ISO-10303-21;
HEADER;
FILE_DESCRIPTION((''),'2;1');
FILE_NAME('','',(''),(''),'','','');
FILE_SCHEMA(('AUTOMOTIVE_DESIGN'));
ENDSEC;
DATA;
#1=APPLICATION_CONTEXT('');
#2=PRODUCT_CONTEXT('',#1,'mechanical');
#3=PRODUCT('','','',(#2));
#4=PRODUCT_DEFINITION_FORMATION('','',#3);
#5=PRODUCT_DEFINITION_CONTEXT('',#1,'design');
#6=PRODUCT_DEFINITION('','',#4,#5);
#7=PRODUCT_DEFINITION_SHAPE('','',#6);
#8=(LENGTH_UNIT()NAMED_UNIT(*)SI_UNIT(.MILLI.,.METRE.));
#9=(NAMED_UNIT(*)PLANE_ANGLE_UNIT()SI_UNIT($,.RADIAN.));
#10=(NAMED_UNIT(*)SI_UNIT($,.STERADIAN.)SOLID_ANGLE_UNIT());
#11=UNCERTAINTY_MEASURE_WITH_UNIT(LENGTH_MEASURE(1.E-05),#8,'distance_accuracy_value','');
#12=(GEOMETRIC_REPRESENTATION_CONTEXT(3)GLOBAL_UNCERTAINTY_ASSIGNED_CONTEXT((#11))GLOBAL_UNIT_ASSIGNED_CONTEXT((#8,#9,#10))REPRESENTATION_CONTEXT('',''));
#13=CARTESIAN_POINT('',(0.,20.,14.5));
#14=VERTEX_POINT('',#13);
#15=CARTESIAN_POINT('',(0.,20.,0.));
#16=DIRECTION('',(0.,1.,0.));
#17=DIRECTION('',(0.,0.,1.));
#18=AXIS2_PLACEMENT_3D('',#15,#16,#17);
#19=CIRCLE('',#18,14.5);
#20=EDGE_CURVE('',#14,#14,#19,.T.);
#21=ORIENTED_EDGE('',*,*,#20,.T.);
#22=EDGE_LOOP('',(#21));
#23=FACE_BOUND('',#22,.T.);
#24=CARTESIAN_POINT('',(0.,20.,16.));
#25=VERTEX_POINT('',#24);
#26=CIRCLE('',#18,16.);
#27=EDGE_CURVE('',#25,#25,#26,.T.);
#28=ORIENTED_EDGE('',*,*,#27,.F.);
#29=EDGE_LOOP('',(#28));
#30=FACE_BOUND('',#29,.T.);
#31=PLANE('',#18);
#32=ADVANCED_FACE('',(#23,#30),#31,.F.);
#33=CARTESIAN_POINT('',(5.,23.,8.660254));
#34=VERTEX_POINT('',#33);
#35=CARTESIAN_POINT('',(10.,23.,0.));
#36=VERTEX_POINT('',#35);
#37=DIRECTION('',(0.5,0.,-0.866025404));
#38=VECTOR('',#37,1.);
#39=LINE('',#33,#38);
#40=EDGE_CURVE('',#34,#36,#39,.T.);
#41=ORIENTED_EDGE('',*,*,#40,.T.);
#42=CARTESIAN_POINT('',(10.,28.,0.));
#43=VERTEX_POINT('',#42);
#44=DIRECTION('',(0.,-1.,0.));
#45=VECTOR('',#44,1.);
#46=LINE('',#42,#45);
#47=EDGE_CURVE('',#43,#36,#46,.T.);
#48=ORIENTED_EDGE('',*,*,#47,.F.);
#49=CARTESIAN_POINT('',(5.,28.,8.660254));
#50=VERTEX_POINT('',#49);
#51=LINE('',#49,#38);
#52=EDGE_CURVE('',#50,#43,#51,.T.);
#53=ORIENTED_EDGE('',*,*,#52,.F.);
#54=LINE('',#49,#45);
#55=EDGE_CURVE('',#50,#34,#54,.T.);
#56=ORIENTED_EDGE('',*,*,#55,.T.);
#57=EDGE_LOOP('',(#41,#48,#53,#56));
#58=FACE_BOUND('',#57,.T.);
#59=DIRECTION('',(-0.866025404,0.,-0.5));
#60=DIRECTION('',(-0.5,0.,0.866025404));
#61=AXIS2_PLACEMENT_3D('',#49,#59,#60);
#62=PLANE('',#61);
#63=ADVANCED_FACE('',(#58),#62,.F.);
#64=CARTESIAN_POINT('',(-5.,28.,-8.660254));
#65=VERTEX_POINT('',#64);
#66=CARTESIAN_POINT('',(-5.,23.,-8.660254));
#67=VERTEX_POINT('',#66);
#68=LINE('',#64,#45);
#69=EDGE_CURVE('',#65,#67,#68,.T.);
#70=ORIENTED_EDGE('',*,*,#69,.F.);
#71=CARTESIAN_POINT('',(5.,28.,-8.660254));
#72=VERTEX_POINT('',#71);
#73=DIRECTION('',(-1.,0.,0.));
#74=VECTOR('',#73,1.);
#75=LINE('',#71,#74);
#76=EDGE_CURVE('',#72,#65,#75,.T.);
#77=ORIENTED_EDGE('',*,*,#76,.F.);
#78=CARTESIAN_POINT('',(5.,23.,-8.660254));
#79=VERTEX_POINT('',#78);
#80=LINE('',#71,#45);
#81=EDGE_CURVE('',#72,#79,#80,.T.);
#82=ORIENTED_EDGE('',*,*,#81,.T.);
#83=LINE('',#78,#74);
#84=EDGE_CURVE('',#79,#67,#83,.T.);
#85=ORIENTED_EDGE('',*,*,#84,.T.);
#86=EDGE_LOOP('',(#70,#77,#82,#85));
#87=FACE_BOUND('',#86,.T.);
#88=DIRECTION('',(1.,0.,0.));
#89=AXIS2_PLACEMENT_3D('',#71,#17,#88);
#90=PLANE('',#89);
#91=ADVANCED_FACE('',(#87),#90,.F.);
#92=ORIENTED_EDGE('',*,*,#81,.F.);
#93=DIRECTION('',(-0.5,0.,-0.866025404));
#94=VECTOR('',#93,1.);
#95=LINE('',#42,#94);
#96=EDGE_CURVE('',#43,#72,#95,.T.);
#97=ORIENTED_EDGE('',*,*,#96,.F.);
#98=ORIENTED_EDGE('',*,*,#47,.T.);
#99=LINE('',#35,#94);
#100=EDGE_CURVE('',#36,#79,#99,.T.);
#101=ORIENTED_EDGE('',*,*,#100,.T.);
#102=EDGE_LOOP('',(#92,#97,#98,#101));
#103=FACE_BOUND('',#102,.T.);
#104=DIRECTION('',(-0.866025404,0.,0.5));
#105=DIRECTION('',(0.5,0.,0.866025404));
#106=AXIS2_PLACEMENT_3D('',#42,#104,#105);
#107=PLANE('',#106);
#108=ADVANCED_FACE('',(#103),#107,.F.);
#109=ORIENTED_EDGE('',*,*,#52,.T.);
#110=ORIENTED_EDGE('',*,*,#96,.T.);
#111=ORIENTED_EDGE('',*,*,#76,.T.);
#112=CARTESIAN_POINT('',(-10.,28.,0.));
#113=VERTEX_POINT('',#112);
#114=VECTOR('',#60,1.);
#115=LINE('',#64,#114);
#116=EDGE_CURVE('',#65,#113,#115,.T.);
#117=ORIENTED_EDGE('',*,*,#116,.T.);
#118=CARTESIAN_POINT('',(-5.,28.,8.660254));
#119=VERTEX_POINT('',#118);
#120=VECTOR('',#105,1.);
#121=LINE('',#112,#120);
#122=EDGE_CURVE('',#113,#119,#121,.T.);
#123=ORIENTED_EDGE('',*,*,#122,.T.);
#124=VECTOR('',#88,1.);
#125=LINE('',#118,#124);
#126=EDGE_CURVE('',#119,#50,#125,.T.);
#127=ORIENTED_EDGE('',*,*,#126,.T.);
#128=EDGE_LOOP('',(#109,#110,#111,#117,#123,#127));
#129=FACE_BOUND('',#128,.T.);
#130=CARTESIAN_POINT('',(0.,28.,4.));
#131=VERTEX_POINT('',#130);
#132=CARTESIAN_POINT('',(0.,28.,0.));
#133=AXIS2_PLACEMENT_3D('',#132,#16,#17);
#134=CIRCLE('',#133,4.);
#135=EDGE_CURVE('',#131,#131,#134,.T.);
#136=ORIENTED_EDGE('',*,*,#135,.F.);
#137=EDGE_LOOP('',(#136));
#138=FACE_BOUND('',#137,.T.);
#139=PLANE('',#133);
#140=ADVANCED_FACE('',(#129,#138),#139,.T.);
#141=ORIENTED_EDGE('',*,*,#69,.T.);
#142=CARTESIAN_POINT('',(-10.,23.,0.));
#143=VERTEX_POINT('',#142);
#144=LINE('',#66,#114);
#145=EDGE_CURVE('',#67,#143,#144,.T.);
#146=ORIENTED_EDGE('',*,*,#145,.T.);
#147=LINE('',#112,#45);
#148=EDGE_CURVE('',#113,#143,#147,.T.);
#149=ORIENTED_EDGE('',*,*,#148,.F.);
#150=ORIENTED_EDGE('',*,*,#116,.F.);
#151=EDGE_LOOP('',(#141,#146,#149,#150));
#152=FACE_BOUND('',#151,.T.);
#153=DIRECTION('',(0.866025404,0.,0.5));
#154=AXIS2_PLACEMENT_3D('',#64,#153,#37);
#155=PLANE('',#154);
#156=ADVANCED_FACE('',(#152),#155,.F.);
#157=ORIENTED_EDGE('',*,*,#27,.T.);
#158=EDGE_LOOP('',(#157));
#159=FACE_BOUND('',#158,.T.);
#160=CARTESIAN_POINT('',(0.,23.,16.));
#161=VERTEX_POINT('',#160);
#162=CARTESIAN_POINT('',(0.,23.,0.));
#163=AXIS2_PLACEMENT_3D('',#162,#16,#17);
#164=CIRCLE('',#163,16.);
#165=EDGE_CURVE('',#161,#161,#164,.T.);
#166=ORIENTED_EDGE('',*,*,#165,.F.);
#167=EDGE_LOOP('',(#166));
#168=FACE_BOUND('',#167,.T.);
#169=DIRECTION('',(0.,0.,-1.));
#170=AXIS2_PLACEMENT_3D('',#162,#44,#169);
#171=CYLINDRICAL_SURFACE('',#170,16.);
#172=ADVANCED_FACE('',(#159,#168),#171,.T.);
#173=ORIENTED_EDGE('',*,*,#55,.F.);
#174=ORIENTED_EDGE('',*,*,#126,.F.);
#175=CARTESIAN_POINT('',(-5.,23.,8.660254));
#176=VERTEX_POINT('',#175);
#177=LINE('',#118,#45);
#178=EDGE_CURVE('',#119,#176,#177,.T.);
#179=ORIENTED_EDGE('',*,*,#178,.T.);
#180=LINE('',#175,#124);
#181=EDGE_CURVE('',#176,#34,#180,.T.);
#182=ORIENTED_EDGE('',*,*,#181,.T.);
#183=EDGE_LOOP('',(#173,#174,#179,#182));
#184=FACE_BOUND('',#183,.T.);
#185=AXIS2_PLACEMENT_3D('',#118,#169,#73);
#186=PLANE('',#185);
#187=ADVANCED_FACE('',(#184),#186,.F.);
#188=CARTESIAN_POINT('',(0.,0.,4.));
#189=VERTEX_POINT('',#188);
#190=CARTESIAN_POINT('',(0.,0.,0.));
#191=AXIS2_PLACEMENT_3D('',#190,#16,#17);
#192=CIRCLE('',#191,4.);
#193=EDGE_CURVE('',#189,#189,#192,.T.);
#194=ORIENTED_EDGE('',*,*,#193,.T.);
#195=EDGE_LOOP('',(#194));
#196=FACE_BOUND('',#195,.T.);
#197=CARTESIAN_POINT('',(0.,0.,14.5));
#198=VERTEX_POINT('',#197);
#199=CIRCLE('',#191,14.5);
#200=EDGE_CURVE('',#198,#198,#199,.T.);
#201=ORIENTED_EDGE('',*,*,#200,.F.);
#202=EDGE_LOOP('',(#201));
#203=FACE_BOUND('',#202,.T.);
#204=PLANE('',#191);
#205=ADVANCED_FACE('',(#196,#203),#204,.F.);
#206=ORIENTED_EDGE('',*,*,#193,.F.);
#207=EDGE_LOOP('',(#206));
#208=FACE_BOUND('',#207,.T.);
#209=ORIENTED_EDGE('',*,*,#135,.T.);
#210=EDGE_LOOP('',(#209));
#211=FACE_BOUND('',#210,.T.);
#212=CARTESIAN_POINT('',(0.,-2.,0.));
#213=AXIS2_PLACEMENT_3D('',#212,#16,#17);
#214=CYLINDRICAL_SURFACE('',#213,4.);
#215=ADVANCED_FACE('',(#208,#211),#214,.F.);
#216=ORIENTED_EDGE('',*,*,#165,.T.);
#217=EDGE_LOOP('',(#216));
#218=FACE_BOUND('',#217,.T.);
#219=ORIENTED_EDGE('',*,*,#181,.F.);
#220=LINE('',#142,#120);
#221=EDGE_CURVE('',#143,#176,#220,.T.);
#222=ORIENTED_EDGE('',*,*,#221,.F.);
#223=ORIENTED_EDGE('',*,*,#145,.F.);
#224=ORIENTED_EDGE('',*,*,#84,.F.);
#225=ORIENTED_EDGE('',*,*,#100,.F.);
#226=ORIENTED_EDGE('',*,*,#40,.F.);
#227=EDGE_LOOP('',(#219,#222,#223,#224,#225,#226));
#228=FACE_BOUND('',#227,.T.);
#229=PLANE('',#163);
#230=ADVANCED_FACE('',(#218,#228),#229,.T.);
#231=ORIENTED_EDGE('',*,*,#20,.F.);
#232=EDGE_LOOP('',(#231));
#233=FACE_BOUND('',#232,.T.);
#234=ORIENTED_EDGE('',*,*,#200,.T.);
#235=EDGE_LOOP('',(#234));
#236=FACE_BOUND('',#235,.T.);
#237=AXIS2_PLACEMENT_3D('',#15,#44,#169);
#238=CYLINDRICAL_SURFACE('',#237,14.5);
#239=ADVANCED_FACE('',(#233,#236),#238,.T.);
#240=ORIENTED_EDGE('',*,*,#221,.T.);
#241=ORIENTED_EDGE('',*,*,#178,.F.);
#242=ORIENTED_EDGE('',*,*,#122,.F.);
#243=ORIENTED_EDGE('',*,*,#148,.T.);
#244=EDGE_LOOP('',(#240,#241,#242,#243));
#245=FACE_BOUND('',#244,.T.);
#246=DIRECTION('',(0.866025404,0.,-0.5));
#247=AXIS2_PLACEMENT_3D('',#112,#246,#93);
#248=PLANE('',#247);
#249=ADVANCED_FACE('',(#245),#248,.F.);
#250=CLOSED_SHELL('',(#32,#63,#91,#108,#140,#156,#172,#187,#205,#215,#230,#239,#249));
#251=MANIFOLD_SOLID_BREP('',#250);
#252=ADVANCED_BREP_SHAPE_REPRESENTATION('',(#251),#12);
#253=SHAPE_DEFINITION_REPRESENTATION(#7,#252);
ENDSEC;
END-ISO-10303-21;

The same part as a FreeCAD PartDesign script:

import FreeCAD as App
import Part
import Sketcher
from FreeCAD import Vector
Q = App.Units.Quantity


def add_polygon(sketch, points):
    """Adds a closed chain of lines whose ends are joined by coincident constraints."""
    first, n = sketch.GeometryCount, len(points)
    for a, b in zip(points, points[1:] + points[:1]):
        sketch.addGeometry(Part.LineSegment(App.Vector(*a, 0), App.Vector(*b, 0)), False)
    for i in range(n):
        sketch.addConstraint(Sketcher.Constraint("Coincident", first + i, 2, first + (i + 1) % n, 1))

doc = App.newDocument("Part")
body = doc.addObject("PartDesign::Body", "Body")

# Sketch on XZ plane
sketch1 = body.newObject("Sketcher::SketchObject", "Sketch")
sketch1.AttachmentSupport = (doc.getObject("XZ_Plane"), [""])
sketch1.MapMode = "FlatFace"
sketch1.addGeometry(Part.Circle(Vector(0, 0, 0), Vector(0, 0, 1), 14), False)
sketch1.addConstraint([
    Sketcher.Constraint("Coincident", 0, 3, -1, 1),
    Sketcher.Constraint("Diameter", 0, 29.0),
])
pad1 = body.newObject("PartDesign::Pad", "Pad")
pad1.Profile = sketch1
pad1.Length = 20
pad1.Reversed = True

# Sketch on XZ plane
sketch2 = body.newObject("Sketcher::SketchObject", "Sketch001")
sketch2.AttachmentSupport = (doc.getObject("XZ_Plane"), [""])
sketch2.MapMode = "FlatFace"
sketch2.AttachmentOffset = App.Placement(Vector(0, 0, -20), App.Rotation())
sketch2.addGeometry(Part.Circle(Vector(0, 0, 0), Vector(0, 0, 1), 16), False)
sketch2.addConstraint([
    Sketcher.Constraint("Coincident", 0, 3, -1, 1),
    Sketcher.Constraint("Diameter", 0, 32.0),
])
pad2 = body.newObject("PartDesign::Pad", "Pad001")
pad2.Profile = sketch2
pad2.Length = 3
pad2.Reversed = True

# Sketch on XZ plane
sketch3 = body.newObject("Sketcher::SketchObject", "Sketch002")
sketch3.AttachmentSupport = (doc.getObject("XZ_Plane"), [""])
sketch3.MapMode = "FlatFace"
sketch3.AttachmentOffset = App.Placement(Vector(0, 0, -23), App.Rotation())
add_polygon(sketch3, [(10, 0), (5, -9), (-5, -9), (-10, 0), (-5, 9), (5, 9)])  # lines 0-5
sketch3.addConstraint([
    Sketcher.Constraint("Horizontal", 1),
    Sketcher.Constraint("Horizontal", 4),
    Sketcher.Constraint("Symmetric", 0, 2, 3, 2, -1, 1),
    Sketcher.Constraint("Symmetric", 2, 2, 5, 2, -1, 1),
    Sketcher.Constraint("PointOnObject", 2, 2, -1),
    Sketcher.Constraint("Parallel", 2, 5),
    Sketcher.Constraint("Vertical", 1, 2, 3, 2),
    Sketcher.Constraint("DistanceX", 1, 2, 1, 1, 10.0),
    Sketcher.Constraint("Angle", 0, Q("-120 deg")),
    Sketcher.Constraint("Distance", 0, 10.0),
])
pad3 = body.newObject("PartDesign::Pad", "Pad002")
pad3.Profile = sketch3
pad3.Length = 5
pad3.Reversed = True

# Sketch on XZ plane
sketch4 = body.newObject("Sketcher::SketchObject", "Sketch003")
sketch4.AttachmentSupport = (doc.getObject("XZ_Plane"), [""])
sketch4.MapMode = "FlatFace"
sketch4.AttachmentOffset = App.Placement(Vector(0, 0, -28), App.Rotation())
sketch4.addGeometry(Part.Circle(Vector(0, 0, 0), Vector(0, 0, 1), 4), False)
sketch4.addConstraint([
    Sketcher.Constraint("Coincident", 0, 3, -1, 1),
    Sketcher.Constraint("Diameter", 0, 8.0),
])
pocket1 = body.newObject("PartDesign::Pocket", "Pocket")
pocket1.Profile = sketch4
pocket1.Length = 30
pocket1.Reversed = True

doc.recompute()
